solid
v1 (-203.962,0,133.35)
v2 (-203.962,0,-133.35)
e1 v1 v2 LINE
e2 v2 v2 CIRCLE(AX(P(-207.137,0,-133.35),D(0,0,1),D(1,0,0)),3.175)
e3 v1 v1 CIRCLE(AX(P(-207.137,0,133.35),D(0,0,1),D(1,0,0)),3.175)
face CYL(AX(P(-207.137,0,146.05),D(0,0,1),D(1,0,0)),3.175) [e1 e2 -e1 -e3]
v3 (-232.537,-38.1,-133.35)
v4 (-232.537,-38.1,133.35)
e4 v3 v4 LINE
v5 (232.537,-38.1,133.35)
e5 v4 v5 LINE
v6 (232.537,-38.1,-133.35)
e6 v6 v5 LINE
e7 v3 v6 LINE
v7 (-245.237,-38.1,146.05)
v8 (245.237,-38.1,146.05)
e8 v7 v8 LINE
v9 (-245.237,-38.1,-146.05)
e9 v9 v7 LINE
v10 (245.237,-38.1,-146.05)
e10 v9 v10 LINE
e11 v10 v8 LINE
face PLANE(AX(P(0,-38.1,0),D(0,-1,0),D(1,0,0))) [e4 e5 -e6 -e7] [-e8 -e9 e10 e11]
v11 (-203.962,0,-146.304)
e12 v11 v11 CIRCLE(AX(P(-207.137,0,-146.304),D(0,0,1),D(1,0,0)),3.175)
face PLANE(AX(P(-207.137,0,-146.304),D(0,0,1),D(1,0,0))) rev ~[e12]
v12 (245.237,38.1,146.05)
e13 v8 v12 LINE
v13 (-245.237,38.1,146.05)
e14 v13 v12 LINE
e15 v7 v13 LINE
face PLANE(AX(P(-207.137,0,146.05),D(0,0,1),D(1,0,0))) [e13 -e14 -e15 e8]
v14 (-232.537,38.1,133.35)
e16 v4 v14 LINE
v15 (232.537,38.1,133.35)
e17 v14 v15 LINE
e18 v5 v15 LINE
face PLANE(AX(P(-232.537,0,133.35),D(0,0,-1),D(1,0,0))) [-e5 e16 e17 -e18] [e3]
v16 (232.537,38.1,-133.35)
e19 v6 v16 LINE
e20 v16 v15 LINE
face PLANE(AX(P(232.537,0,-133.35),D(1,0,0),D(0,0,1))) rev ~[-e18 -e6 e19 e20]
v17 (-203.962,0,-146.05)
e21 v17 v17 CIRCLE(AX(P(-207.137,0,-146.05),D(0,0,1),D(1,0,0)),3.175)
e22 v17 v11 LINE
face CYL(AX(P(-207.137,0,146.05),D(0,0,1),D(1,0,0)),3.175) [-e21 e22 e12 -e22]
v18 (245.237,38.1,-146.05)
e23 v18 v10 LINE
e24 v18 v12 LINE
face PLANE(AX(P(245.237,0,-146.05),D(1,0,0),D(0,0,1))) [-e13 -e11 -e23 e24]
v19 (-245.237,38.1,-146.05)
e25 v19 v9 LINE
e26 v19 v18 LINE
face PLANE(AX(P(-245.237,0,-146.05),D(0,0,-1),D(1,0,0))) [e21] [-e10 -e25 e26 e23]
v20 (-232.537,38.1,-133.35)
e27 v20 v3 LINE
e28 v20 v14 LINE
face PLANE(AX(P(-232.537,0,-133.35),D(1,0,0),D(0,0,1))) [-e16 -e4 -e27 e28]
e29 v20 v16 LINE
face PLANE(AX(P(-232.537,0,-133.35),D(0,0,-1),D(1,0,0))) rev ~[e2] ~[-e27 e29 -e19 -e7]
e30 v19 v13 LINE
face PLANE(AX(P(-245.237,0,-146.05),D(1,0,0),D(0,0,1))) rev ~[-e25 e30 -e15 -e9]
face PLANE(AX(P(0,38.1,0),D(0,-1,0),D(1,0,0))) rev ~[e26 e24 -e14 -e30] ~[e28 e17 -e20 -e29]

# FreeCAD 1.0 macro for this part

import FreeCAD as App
import Part
import Sketcher

V = App.Vector
Q = App.Units.Quantity

doc = App.newDocument("Part")
body = doc.addObject("PartDesign::Body", "Body")

sketch1 = body.newObject("Sketcher::SketchObject", "Sketch")
sketch1.AttachmentSupport = (doc.getObject("XZ_Plane"), [""])
sketch1.MapMode = "FlatFace"
sketch1.addGeometry([
    Part.LineSegment(V(-245.237, 146.05, 0), V(-245.237, -146.05, 0)),
    Part.LineSegment(V(-245.237, -146.05, 0), V(245.237, -146.05, 0)),
    Part.LineSegment(V(245.237, -146.05, 0), V(245.237, 146.05, 0)),
    Part.LineSegment(V(245.237, 146.05, 0), V(-245.237, 146.05, 0)),
    Part.LineSegment(V(232.537, -133.35, 0), V(-232.537, -133.35, 0)),
    Part.LineSegment(V(-232.537, -133.35, 0), V(-232.537, 133.35, 0)),
    Part.LineSegment(V(-232.537, 133.35, 0), V(232.537, 133.35, 0)),
    Part.LineSegment(V(232.537, 133.35, 0), V(232.537, -133.35, 0)),
], False)
sketch1.addConstraint([
    Sketcher.Constraint("Coincident", 0, 2, 1, 1),
    Sketcher.Constraint("Coincident", 1, 2, 2, 1),
    Sketcher.Constraint("Coincident", 2, 2, 3, 1),
    Sketcher.Constraint("Coincident", 3, 2, 0, 1),
    Sketcher.Constraint("Coincident", 4, 2, 5, 1),
    Sketcher.Constraint("Coincident", 5, 2, 6, 1),
    Sketcher.Constraint("Coincident", 6, 2, 7, 1),
    Sketcher.Constraint("Coincident", 7, 2, 4, 1),
    Sketcher.Constraint("Vertical", 0),
    Sketcher.Constraint("Horizontal", 1),
    Sketcher.Constraint("Vertical", 2),
    Sketcher.Constraint("Horizontal", 3),
    Sketcher.Constraint("Horizontal", 4),
    Sketcher.Constraint("Vertical", 5),
    Sketcher.Constraint("Horizontal", 6),
    Sketcher.Constraint("Vertical", 7),
    Sketcher.Constraint("Symmetric", 0, 2, 2, 2, -1, 1),
    Sketcher.Constraint("Symmetric", 4, 2, 6, 2, -1, 1),
    Sketcher.Constraint("DistanceY", 0, 2, 0, 1, Q("11.5 in")),
    Sketcher.Constraint("DistanceY", 5, 1, 5, 2, Q("10.5 in")),
    Sketcher.Constraint("DistanceX", 1, 1, 1, 2, Q("19.31 in")),
    Sketcher.Constraint("DistanceX", 4, 2, 4, 1, Q("18.31 in")),
])
pad1 = body.newObject("PartDesign::Pad", "Pad")
pad1.Profile = sketch1
pad1.Length = Q("3 in")
pad1.Midplane = True

sketch2 = body.newObject("Sketcher::SketchObject", "Sketch001")
sketch2.AttachmentSupport = (doc.getObject("XY_Plane"), [""])
sketch2.MapMode = "FlatFace"
sketch2.AttachmentOffset = App.Placement(V(0, 0, 5.75 * 25.4), App.Rotation())
sketch2.addGeometry(Part.Circle(V(-207.137, 0, 0), V(0, 0, 1), 3.175), False)
sketch2.addConstraint([
    Sketcher.Constraint("PointOnObject", 0, 3, -1),
    Sketcher.Constraint("Diameter", 0, Q("0.25 in")),
    Sketcher.Constraint("DistanceX", 0, 3, -1, 1, Q("8.155 in")),
])
pad2 = body.newObject("PartDesign::Pad", "Pad001")
pad2.Profile = sketch2
pad2.Length = Q("11.51 in")
pad2.Reversed = True

doc.recompute()
